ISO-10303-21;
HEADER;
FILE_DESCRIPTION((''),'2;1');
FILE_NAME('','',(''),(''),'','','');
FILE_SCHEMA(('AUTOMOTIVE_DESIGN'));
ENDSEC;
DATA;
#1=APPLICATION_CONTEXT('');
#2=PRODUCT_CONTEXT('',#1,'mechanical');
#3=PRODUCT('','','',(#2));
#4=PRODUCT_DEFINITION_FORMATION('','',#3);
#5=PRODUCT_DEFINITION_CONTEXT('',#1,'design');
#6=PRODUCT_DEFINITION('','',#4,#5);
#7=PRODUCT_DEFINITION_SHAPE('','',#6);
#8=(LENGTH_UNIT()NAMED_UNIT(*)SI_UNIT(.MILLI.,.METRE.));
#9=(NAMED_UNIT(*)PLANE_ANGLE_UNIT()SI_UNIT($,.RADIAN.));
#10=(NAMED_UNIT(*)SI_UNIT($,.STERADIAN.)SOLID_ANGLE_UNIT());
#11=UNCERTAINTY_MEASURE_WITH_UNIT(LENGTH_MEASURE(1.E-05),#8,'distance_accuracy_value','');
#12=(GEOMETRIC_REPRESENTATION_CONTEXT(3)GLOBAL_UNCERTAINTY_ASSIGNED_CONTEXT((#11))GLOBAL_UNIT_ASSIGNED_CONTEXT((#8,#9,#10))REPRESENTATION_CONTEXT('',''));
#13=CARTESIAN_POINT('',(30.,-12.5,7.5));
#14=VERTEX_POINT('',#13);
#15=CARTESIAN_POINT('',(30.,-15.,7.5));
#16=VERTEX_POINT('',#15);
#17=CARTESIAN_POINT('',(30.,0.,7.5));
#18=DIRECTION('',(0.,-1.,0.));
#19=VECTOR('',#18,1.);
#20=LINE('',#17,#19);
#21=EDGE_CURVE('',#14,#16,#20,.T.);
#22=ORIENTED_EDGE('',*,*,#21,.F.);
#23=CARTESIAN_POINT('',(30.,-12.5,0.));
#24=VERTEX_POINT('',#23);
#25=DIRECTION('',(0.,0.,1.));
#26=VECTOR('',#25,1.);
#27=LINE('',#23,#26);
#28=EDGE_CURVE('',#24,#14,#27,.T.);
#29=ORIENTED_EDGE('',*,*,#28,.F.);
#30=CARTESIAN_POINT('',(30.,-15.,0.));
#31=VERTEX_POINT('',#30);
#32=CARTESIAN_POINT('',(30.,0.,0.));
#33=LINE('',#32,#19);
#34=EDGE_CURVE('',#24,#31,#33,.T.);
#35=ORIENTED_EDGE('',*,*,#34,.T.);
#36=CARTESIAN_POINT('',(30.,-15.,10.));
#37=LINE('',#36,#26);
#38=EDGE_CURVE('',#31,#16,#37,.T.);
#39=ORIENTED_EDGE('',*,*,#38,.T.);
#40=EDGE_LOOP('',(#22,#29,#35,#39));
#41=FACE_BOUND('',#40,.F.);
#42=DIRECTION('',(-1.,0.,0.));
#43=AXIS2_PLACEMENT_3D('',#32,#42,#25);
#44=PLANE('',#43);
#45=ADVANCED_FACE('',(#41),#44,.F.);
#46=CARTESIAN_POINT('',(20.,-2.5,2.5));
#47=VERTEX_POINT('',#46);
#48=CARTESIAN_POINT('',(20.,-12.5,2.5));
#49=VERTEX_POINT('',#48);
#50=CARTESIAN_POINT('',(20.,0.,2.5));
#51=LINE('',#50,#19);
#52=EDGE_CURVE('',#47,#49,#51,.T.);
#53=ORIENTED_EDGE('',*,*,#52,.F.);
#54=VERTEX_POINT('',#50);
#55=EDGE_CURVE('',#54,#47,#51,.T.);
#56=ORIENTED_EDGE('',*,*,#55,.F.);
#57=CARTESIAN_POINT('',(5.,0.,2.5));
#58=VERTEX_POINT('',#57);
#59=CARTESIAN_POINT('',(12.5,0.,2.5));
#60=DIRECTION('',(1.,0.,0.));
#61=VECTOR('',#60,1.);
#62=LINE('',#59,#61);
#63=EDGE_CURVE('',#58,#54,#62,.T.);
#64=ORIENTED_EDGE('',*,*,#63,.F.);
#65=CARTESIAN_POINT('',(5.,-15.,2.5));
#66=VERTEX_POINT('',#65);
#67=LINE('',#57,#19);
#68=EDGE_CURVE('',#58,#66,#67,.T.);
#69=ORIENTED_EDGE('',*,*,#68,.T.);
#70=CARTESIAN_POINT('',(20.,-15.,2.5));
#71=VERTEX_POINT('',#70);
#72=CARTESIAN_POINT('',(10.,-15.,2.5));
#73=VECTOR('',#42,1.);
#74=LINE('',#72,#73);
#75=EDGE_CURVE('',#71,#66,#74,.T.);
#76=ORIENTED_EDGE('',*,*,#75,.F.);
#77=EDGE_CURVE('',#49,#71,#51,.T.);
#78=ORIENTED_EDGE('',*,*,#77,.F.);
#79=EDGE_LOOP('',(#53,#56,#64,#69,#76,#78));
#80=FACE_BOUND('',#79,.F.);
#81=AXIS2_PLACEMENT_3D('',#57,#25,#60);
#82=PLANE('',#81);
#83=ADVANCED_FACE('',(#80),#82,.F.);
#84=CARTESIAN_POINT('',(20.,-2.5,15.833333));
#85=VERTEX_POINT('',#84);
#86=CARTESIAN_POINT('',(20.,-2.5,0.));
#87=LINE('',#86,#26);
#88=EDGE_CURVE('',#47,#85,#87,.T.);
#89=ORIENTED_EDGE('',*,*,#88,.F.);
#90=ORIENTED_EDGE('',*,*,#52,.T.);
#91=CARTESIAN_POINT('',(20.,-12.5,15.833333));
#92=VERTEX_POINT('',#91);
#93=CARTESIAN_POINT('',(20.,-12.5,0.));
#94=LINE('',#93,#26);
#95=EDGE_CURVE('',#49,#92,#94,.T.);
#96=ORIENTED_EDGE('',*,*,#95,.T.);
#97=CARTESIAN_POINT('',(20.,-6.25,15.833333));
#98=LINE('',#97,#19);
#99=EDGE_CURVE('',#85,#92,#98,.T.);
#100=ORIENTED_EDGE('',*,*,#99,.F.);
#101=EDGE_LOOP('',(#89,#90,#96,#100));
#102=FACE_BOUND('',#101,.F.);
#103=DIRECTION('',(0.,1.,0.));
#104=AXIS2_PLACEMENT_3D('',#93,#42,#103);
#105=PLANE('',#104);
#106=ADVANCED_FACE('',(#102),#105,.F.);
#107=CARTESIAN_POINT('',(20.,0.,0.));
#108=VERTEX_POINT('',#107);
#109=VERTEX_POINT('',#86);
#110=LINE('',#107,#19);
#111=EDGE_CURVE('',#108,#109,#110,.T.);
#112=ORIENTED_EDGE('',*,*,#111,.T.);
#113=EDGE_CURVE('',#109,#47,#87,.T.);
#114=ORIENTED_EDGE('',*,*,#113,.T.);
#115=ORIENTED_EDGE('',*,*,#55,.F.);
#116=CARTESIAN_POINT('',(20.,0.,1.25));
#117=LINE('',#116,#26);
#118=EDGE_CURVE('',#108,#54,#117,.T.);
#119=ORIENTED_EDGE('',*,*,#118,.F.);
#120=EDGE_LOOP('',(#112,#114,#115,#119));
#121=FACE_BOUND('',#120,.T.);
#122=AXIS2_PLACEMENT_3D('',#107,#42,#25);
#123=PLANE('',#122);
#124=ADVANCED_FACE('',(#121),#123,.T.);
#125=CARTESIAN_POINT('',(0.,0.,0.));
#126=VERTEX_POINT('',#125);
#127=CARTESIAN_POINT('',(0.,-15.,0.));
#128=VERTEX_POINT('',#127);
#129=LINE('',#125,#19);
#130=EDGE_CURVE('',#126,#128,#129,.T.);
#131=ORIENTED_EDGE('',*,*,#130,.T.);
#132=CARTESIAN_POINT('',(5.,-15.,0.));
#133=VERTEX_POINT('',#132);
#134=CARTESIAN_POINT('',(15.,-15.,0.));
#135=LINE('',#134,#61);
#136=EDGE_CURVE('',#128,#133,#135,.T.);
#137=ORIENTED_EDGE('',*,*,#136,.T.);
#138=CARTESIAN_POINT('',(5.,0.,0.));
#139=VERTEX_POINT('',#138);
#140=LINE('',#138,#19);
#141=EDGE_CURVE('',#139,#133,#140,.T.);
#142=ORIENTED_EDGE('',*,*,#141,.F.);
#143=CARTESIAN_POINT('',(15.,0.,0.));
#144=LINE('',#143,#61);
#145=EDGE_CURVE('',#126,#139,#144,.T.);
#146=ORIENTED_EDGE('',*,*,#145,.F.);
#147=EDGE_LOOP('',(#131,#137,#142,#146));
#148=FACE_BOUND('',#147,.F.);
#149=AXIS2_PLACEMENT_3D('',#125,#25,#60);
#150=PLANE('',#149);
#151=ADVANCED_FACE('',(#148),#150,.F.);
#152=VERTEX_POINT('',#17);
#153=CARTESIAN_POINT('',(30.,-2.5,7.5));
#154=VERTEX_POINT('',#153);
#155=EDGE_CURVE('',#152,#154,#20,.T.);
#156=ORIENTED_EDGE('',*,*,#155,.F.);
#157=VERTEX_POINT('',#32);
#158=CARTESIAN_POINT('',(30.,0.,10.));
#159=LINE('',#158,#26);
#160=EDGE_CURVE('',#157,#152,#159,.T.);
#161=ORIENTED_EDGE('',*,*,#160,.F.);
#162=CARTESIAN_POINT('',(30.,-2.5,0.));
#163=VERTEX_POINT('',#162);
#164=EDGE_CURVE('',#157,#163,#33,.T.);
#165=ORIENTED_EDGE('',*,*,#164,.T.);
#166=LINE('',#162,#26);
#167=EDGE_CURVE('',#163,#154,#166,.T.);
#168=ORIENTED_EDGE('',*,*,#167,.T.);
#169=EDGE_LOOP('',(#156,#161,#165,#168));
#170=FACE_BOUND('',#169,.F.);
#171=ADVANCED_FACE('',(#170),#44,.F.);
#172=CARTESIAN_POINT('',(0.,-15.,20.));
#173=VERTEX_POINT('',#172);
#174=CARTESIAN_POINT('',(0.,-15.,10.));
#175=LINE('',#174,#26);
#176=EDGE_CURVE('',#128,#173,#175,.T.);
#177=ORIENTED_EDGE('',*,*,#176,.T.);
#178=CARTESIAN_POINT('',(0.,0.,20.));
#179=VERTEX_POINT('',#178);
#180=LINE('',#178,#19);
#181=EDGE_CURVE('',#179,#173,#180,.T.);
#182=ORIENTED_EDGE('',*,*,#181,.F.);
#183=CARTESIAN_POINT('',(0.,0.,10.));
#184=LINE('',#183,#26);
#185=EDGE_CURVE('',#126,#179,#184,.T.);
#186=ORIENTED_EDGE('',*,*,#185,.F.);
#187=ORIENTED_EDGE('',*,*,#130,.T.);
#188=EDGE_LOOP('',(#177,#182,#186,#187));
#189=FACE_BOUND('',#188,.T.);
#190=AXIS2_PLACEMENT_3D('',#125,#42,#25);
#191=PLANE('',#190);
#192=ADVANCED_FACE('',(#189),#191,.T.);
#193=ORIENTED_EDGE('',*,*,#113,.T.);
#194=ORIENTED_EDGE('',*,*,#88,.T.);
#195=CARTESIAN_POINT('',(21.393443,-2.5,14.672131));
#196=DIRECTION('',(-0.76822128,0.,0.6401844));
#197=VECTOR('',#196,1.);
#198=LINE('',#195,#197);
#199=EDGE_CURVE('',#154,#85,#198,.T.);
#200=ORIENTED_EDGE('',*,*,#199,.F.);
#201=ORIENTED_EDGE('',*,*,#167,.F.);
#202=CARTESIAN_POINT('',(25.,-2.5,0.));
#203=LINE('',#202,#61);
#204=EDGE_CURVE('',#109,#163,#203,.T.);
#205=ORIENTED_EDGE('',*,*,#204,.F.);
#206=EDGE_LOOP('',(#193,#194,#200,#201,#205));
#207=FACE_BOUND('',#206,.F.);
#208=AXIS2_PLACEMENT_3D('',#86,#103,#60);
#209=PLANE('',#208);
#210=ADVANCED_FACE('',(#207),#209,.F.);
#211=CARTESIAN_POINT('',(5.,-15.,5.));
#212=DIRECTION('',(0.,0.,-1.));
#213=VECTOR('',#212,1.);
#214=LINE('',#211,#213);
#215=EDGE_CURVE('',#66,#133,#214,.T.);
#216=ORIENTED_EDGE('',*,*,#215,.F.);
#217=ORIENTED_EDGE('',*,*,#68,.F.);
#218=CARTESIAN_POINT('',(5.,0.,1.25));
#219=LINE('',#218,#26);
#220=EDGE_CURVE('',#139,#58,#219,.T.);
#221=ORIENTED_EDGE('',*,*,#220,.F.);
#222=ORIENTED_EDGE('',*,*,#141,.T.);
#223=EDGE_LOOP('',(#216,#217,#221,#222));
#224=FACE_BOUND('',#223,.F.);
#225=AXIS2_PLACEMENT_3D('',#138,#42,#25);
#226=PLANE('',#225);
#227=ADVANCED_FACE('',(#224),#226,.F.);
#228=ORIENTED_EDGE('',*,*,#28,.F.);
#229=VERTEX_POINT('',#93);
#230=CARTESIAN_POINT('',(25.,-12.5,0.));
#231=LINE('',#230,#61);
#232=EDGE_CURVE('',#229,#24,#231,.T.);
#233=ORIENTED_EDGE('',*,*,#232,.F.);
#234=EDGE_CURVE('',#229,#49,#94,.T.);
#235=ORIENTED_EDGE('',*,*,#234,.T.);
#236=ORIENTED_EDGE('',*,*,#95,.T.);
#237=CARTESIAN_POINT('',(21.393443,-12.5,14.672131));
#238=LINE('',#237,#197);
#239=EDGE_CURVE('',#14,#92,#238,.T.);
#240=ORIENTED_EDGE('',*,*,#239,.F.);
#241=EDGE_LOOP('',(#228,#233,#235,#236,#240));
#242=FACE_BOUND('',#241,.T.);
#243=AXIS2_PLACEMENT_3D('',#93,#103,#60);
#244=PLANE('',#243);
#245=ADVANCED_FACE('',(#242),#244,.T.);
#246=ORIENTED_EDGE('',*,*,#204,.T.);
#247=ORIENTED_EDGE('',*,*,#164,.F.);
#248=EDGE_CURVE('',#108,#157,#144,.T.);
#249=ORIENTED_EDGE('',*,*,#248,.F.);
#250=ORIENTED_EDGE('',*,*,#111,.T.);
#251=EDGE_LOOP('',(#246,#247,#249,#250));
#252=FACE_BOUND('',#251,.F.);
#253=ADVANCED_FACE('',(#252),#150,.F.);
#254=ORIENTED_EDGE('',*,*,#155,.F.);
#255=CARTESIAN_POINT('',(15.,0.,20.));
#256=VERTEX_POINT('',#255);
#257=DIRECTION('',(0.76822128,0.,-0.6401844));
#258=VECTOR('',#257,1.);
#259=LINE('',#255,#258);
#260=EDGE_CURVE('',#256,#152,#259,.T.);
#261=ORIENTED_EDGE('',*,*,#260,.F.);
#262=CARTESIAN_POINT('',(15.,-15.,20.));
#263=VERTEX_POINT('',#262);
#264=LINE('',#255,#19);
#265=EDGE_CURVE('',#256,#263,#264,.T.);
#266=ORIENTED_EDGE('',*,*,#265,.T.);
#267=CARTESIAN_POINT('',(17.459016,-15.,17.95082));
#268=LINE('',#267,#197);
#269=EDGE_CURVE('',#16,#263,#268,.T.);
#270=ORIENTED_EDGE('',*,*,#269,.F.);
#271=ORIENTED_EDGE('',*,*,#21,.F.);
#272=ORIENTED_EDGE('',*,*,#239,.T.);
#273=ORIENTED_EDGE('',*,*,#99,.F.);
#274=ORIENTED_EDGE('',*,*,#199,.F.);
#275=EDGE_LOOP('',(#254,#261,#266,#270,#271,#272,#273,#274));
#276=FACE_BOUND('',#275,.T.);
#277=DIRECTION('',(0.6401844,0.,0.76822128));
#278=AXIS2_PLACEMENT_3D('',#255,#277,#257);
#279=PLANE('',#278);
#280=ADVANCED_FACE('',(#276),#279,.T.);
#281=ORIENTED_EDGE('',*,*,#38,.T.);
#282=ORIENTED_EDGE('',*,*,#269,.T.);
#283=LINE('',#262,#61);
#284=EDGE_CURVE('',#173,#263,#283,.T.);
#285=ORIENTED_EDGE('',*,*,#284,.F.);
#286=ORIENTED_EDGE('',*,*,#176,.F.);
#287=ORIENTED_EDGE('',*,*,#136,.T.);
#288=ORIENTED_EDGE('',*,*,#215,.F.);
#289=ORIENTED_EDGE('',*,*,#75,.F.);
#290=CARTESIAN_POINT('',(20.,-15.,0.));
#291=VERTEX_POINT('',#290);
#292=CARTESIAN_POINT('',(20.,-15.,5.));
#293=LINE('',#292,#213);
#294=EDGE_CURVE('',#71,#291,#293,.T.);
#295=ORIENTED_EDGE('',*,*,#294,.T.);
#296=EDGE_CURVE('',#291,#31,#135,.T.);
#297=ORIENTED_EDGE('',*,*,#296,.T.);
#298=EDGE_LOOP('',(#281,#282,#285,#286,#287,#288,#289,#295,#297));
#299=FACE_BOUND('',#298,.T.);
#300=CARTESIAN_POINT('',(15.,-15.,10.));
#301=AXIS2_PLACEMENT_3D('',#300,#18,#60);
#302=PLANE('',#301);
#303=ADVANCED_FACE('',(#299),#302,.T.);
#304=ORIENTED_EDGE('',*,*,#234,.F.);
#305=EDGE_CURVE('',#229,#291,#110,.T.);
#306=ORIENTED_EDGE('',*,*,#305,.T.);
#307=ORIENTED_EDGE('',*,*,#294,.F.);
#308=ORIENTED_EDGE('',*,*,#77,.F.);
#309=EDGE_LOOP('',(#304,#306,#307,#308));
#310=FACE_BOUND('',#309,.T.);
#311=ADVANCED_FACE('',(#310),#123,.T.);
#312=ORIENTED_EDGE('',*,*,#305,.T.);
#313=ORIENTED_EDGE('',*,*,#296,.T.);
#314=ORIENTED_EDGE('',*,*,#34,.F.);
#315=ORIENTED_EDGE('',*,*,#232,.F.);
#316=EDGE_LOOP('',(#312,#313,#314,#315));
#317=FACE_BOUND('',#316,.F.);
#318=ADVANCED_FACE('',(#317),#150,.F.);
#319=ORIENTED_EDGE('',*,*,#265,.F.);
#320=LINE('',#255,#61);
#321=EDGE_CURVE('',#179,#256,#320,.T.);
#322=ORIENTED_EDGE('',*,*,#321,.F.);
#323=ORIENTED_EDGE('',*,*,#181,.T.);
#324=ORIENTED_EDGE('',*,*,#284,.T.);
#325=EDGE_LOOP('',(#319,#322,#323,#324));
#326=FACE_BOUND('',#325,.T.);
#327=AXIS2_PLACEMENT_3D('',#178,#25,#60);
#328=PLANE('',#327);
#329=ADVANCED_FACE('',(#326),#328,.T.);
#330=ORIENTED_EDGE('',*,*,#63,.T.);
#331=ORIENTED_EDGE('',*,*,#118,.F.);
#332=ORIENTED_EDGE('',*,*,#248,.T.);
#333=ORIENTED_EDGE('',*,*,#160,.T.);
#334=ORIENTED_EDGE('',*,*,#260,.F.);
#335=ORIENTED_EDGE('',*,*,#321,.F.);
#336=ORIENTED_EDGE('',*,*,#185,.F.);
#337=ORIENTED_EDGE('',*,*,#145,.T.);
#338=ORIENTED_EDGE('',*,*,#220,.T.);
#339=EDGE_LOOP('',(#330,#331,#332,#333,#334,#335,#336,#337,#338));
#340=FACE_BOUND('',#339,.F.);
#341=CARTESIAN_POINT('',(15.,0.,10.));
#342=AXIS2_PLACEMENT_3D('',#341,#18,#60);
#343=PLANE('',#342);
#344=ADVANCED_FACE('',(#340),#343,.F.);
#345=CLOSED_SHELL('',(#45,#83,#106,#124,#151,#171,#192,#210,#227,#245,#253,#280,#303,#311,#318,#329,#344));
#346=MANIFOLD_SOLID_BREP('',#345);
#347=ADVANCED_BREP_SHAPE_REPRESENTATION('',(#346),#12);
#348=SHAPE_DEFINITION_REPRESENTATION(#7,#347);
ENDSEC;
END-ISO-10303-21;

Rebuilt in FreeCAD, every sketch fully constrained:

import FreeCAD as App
import Part
import Sketcher
Q = App.Units.Quantity


def add_polygon(sketch, points):
    """Adds a closed chain of lines whose ends are joined by coincident constraints."""
    first, n = sketch.GeometryCount, len(points)
    for a, b in zip(points, points[1:] + points[:1]):
        sketch.addGeometry(Part.LineSegment(App.Vector(*a, 0), App.Vector(*b, 0)), False)
    for i in range(n):
        sketch.addConstraint(Sketcher.Constraint("Coincident", first + i, 2, first + (i + 1) % n, 1))

doc = App.newDocument("Part")
body = doc.addObject("PartDesign::Body", "Body")

# Sketch on XZ plane
sketch1 = body.newObject("Sketcher::SketchObject", "Sketch")
sketch1.AttachmentSupport = (doc.getObject("XZ_Plane"), [""])
sketch1.MapMode = "FlatFace"
add_polygon(sketch1, [(0, 20), (0, 0), (30, 0), (30, 20)])  # lines 0-3
sketch1.addConstraint([
    Sketcher.Constraint("Vertical", 0),
    Sketcher.Constraint("Horizontal", 1),
    Sketcher.Constraint("Vertical", 2),
    Sketcher.Constraint("Horizontal", 3),
    Sketcher.Constraint("Coincident", 0, 2, -1, 1),
    Sketcher.Constraint("DistanceX", 1, 1, 1, 2, Q("30 mm")),
    Sketcher.Constraint("DistanceY", 0, 2, 0, 1, Q("20 mm")),
])
pad1 = body.newObject("PartDesign::Pad", "Pad")
pad1.Profile = sketch1
pad1.Length = 15

# Sketch on XZ plane
sketch2 = body.newObject("Sketcher::SketchObject", "Sketch001")
sketch2.AttachmentSupport = (doc.getObject("XZ_Plane"), [""])
sketch2.MapMode = "FlatFace"
add_polygon(sketch2, [(5, 2.5), (5, 0), (20, 0), (20, 2.5)])  # lines 0-3
add_polygon(sketch2, [(30, 20), (15, 20), (30, 7.5)])  # lines 4-6
sketch2.addConstraint([
    Sketcher.Constraint("Vertical", 0),
    Sketcher.Constraint("Horizontal", 1),
    Sketcher.Constraint("Vertical", 2),
    Sketcher.Constraint("Horizontal", 3),
    Sketcher.Constraint("Horizontal", 4),
    Sketcher.Constraint("Vertical", 6),
    Sketcher.Constraint("PointOnObject", 0, 2, -1),
    Sketcher.Constraint("Equal", 3, 4),
    Sketcher.Constraint("DistanceX", 1, 1, 1, 2, Q("15 mm")),
    Sketcher.Constraint("DistanceY", 0, 2, 0, 1, Q("2.5 mm")),
    Sketcher.Constraint("DistanceY", 6, 1, 6, 2, Q("12.5 mm")),
    Sketcher.Constraint("DistanceX", -1, 1, 0, 2, Q("5 mm")),
    Sketcher.Constraint("DistanceX", -1, 1, 4, 2, Q("15 mm")),
    Sketcher.Constraint("DistanceY", -1, 1, 4, 2, Q("20 mm")),
])
pocket1 = body.newObject("PartDesign::Pocket", "Pocket")
pocket1.Profile = sketch2
pocket1.Type = "ThroughAll"
pocket1.Reversed = True

# Sketch on XY plane
sketch3 = body.newObject("Sketcher::SketchObject", "Sketch002")
sketch3.AttachmentSupport = (doc.getObject("XY_Plane"), [""])
sketch3.MapMode = "FlatFace"
add_polygon(sketch3, [(20, -2.5), (20, -12.5), (30, -12.5), (30, -2.5)])  # lines 0-3
sketch3.addConstraint([
    Sketcher.Constraint("Vertical", 0),
    Sketcher.Constraint("Horizontal", 1),
    Sketcher.Constraint("Vertical", 2),
    Sketcher.Constraint("Horizontal", 3),
    Sketcher.Constraint("Equal", 3, 0),
    Sketcher.Constraint("DistanceX", 1, 1, 1, 2, Q("10 mm")),
    Sketcher.Constraint("DistanceX", -1, 1, 0, 2, Q("20 mm")),
    Sketcher.Constraint("DistanceY", 0, 2, -1, 1, Q("12.5 mm")),
])
pocket2 = body.newObject("PartDesign::Pocket", "Pocket001")
pocket2.Profile = sketch3
pocket2.Type = "ThroughAll"
pocket2.Reversed = True

doc.recompute()
